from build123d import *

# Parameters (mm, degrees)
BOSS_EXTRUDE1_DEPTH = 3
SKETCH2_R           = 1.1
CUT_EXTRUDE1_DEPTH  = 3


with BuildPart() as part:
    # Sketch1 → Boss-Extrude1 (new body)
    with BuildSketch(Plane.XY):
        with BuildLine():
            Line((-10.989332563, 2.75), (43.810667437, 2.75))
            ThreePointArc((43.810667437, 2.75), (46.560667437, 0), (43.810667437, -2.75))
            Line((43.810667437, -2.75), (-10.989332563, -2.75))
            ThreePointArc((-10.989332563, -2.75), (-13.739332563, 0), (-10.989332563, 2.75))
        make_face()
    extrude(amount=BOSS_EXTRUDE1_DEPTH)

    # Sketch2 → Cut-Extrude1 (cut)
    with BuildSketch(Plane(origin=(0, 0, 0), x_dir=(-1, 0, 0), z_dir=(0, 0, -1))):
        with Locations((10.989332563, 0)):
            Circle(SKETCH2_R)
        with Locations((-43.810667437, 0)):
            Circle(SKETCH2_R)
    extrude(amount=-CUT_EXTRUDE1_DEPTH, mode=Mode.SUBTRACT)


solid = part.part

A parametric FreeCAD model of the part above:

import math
import FreeCAD as App
import Part
import Sketcher

doc = App.newDocument("Part")
body = doc.addObject("PartDesign::Body", "Body")

# Sketch on XY plane
sketch1 = body.newObject("Sketcher::SketchObject", "Sketch")
sketch1.AttachmentSupport = (doc.getObject("XY_Plane"), [""])
sketch1.MapMode = "FlatFace"
sketch1.addGeometry([
    Part.LineSegment(App.Vector(43.810667, 2.75, 0), App.Vector(-10.989333, 2.75, 0)),
    Part.ArcOfCircle(Part.Circle(App.Vector(-10.989333, 0, 0), App.Vector(0, 0, 1), 2.75), math.radians(90), math.radians(270)),
    Part.LineSegment(App.Vector(-10.989333, -2.75, 0), App.Vector(43.810667, -2.75, 0)),
    Part.ArcOfCircle(Part.Circle(App.Vector(43.810667, 0, 0), App.Vector(0, 0, 1), 2.75), math.radians(-90), math.radians(90)),
], False)
sketch1.addConstraint([
    Sketcher.Constraint("Tangent", 0, 2, 1, 1),
    Sketcher.Constraint("Tangent", 1, 2, 2, 1),
    Sketcher.Constraint("Tangent", 2, 2, 3, 1),
    Sketcher.Constraint("Tangent", 3, 2, 0, 1),
    Sketcher.Constraint("Horizontal", 0),
    Sketcher.Constraint("Horizontal", 2),
    Sketcher.Constraint("PointOnObject", 1, 3, -1),
    Sketcher.Constraint("Radius", 1, 2.75),
    Sketcher.Constraint("DistanceX", 0, 2, 0, 1, 54.8),
    Sketcher.Constraint("DistanceX", 1, 3, -1, 1, 10.989333),
])
pad1 = body.newObject("PartDesign::Pad", "Pad")
pad1.Profile = sketch1
pad1.Length = 3

# Sketch on XY plane
sketch2 = body.newObject("Sketcher::SketchObject", "Sketch001")
sketch2.AttachmentSupport = (doc.getObject("XY_Plane"), [""])
sketch2.MapMode = "FlatFace"
sketch2.addGeometry([
    Part.Circle(App.Vector(-10.989333, 0, 0), App.Vector(0, 0, 1), 1.1),
    Part.Circle(App.Vector(43.810667, 0, 0), App.Vector(0, 0, 1), 1.1),
], False)
sketch2.addConstraint([
    Sketcher.Constraint("Equal", 0, 1),
    Sketcher.Constraint("PointOnObject", 0, 3, -1),
    Sketcher.Constraint("PointOnObject", 1, 3, -1),
    Sketcher.Constraint("Diameter", 0, 2.2),
    Sketcher.Constraint("DistanceX", 0, 3, 1, 3, 54.8),
    Sketcher.Constraint("DistanceX", 0, 3, -1, 1, 10.989333),
])
pocket1 = body.newObject("PartDesign::Pocket", "Pocket")
pocket1.Profile = sketch2
pocket1.Length = 3
pocket1.Reversed = True

doc.recompute()
